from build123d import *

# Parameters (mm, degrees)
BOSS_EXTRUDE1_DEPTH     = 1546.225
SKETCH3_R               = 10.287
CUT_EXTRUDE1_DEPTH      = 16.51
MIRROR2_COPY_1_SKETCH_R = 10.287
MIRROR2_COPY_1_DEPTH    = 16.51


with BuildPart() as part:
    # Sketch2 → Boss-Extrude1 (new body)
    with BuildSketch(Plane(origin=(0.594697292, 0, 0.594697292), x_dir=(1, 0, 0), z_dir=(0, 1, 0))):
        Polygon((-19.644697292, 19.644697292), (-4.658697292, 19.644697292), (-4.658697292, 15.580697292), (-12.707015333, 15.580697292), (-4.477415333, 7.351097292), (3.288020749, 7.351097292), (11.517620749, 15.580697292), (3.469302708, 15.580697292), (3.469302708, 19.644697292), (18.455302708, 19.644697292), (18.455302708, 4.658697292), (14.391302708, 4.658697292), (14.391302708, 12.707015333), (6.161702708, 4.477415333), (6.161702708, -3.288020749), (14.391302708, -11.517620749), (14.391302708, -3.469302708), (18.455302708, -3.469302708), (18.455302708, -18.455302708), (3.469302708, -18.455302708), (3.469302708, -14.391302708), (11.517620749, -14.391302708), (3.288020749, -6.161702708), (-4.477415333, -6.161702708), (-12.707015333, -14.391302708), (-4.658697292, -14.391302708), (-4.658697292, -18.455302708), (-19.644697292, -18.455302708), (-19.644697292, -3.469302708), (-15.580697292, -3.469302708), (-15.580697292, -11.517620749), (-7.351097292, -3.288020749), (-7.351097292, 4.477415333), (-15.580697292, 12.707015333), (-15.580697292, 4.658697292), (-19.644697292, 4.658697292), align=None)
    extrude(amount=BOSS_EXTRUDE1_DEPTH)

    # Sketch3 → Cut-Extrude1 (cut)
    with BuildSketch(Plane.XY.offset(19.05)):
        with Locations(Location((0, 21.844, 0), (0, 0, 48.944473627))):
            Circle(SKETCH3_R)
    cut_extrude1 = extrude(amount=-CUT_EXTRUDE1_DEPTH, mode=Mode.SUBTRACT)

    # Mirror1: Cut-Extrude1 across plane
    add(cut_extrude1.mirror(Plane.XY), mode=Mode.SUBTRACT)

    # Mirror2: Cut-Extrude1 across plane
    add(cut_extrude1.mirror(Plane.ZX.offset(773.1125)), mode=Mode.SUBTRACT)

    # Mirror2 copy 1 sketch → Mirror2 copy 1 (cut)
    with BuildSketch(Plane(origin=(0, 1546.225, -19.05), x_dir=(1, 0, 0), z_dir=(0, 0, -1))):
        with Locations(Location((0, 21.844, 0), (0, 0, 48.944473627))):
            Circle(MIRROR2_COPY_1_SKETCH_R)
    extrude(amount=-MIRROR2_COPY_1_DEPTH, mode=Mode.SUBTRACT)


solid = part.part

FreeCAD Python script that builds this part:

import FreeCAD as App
import Part
import Sketcher
Q = App.Units.Quantity


def add_polygon(sketch, points):
    """Adds a closed chain of lines whose ends are joined by coincident constraints."""
    first, n = sketch.GeometryCount, len(points)
    for a, b in zip(points, points[1:] + points[:1]):
        sketch.addGeometry(Part.LineSegment(App.Vector(*a, 0), App.Vector(*b, 0)), False)
    for i in range(n):
        sketch.addConstraint(Sketcher.Constraint("Coincident", first + i, 2, first + (i + 1) % n, 1))

doc = App.newDocument("Part")
params = doc.addObject("Spreadsheet::Sheet", "Params")
for row, (alias, value) in enumerate([
    ("sketch1_width", "0.59 in"),
    ("sketch1_width2", "0.16 in"),
    ("pad1_length", "60.875 in"),
    ("sketch2_diameter", "0.81 in"),
    ("pocket1_length", "0.65 in"),
    ("sketch3_diameter", "0.81 in"),
    ("pocket2_length", "0.65 in"),
], start=1):
    params.set(f"A{row}", alias)
    params.set(f"B{row}", "=" + value)
    params.setAlias(f"B{row}", alias)

body = doc.addObject("PartDesign::Body", "Body")

# Sketch on XZ plane
sketch1 = body.newObject("Sketcher::SketchObject", "Sketch")
sketch1.AttachmentSupport = (doc.getObject("XZ_Plane"), [""])
sketch1.MapMode = "FlatFace"
add_polygon(sketch1, [(-4.1, -19.1), (-19.1, -19.1), (-19.1, -4.1), (-15, -4.1), (-15, -12.1), (-6.8, -3.9), (-6.8, 3.9), (-15, 12.1), (-15, 4.1), (-19.1, 4.1), (-19.1, 19.1), (-4.1, 19.1), (-4.1, 15), (-12.1, 15), (-3.9, 6.8), (3.9, 6.8), (12.1, 15), (4.1, 15), (4.1, 19.1), (19.1, 19.1), (19.1, 4.1), (15, 4.1), (15, 12.1), (6.8, 3.9), (6.8, -3.9), (15, -12.1), (15, -4.1), (19.1, -4.1), (19.1, -19.1), (4.1, -19.1), (4.1, -15), (12.1, -15), (3.9, -6.8), (-3.9, -6.8), (-12.1, -15), (-4.1, -15)])  # lines 0-35
sketch1.addConstraint(Sketcher.Constraint("Horizontal", 0))
sketch1.addConstraint(Sketcher.Constraint("Vertical", 1))
sketch1.addConstraint(Sketcher.Constraint("Horizontal", 2))
sketch1.addConstraint(Sketcher.Constraint("Vertical", 3))
sketch1.addConstraint(Sketcher.Constraint("Vertical", 5))
sketch1.addConstraint(Sketcher.Constraint("Vertical", 7))
sketch1.addConstraint(Sketcher.Constraint("Horizontal", 8))
sketch1.addConstraint(Sketcher.Constraint("Vertical", 9))
sketch1.addConstraint(Sketcher.Constraint("Horizontal", 10))
sketch1.addConstraint(Sketcher.Constraint("Vertical", 11))
sketch1.addConstraint(Sketcher.Constraint("Horizontal", 12))
sketch1.addConstraint(Sketcher.Constraint("Horizontal", 14))
sketch1.addConstraint(Sketcher.Constraint("Horizontal", 16))
sketch1.addConstraint(Sketcher.Constraint("Vertical", 17))
sketch1.addConstraint(Sketcher.Constraint("Horizontal", 18))
sketch1.addConstraint(Sketcher.Constraint("Vertical", 19))
sketch1.addConstraint(Sketcher.Constraint("Horizontal", 20))
sketch1.addConstraint(Sketcher.Constraint("Vertical", 21))
sketch1.addConstraint(Sketcher.Constraint("Vertical", 23))
sketch1.addConstraint(Sketcher.Constraint("Vertical", 25))
sketch1.addConstraint(Sketcher.Constraint("Horizontal", 26))
sketch1.addConstraint(Sketcher.Constraint("Vertical", 27))
sketch1.addConstraint(Sketcher.Constraint("Horizontal", 28))
sketch1.addConstraint(Sketcher.Constraint("Vertical", 29))
sketch1.addConstraint(Sketcher.Constraint("Horizontal", 30))
sketch1.addConstraint(Sketcher.Constraint("Horizontal", 32))
sketch1.addConstraint(Sketcher.Constraint("Horizontal", 34))
sketch1.addConstraint(Sketcher.Constraint("Vertical", 35))
sketch1.addConstraint(Sketcher.Constraint("Symmetric", 0, 2, 18, 2, -1, 1))
sketch1.addConstraint(Sketcher.Constraint("Symmetric", 2, 2, 20, 2, -1, 1))
sketch1.addConstraint(Sketcher.Constraint("Symmetric", 4, 2, 22, 2, -1, 1))
sketch1.addConstraint(Sketcher.Constraint("Symmetric", 6, 2, 24, 2, -1, 1))
sketch1.addConstraint(Sketcher.Constraint("Symmetric", 8, 2, 26, 2, -1, 1))
sketch1.addConstraint(Sketcher.Constraint("Symmetric", 10, 2, 28, 2, -1, 1))
sketch1.addConstraint(Sketcher.Constraint("Symmetric", 12, 2, 30, 2, -1, 1))
sketch1.addConstraint(Sketcher.Constraint("Symmetric", 13, 2, 31, 2, -1, 1))
sketch1.addConstraint(Sketcher.Constraint("Symmetric", 15, 2, 33, 2, -1, 1))
sketch1.addConstraint(Sketcher.Constraint("Symmetric", 12, 2, 15, 2, -2))
sketch1.addConstraint(Sketcher.Constraint("Symmetric", 10, 2, 17, 2, -2))
sketch1.addConstraint(Sketcher.Constraint("Symmetric", 8, 2, 19, 2, -2))
sketch1.addConstraint(Sketcher.Constraint("Symmetric", 6, 2, 21, 2, -2))
sketch1.addConstraint(Sketcher.Constraint("Perpendicular", 4, 6))
sketch1.addConstraint(Sketcher.Constraint("Parallel", 6, 13))
sketch1.addConstraint(Sketcher.Constraint("Perpendicular", 13, 15))
sketch1.addConstraint(Sketcher.Constraint("Parallel", 15, 22))
sketch1.addConstraint(Sketcher.Constraint("Perpendicular", 22, 24))
sketch1.addConstraint(Sketcher.Constraint("Perpendicular", 31, 33))
sketch1.addConstraint(Sketcher.Constraint("Horizontal", 5, 2, 22, 2))
sketch1.addConstraint(Sketcher.Constraint("Vertical", 11, 2, 34, 2))
sketch1.addConstraint(Sketcher.Constraint("Equal", 28, 1))
sketch1.addConstraint(Sketcher.Constraint("Equal", 34, 3))
sketch1.addConstraint(Sketcher.Constraint("Equal", 32, 5))
sketch1.addConstraint(Sketcher.Constraint("Equal", 26, 11))
sketch1.addConstraint(Sketcher.Constraint("Equal", 6, 13))
sketch1.addConstraint(Sketcher.Constraint("DistanceX", 0, 2, 0, 1, Q("0.59 in")))
sketch1.addConstraint(Sketcher.Constraint("DistanceX", 2, 1, 2, 2, Q("0.16 in")))
sketch1.addConstraint(Sketcher.Constraint("DistanceX", 0, 2, -1, 1, Q("0.75 in")))
sketch1.addConstraint(Sketcher.Constraint("DistanceX", 4, 2, -1, 1, Q("0.266 in")))
sketch1.addConstraint(Sketcher.Constraint("DistanceX", 12, 2, 12, 1, Q("8.048318 mm")))
sketch1.setExpression("Constraints[90]", "Params.sketch1_width")
sketch1.setExpression("Constraints[91]", "Params.sketch1_width2")
pad1 = body.newObject("PartDesign::Pad", "Pad")
pad1.Profile = sketch1
pad1.setExpression("Length", "Params.pad1_length")
pad1.Reversed = True

# Sketch on XY plane
sketch2 = body.newObject("Sketcher::SketchObject", "Sketch001")
sketch2.AttachmentSupport = (doc.getObject("XY_Plane"), [""])
sketch2.MapMode = "FlatFace"
sketch2.AttachmentOffset = App.Placement(App.Vector(0, 0, 0.75 * 25.4), App.Rotation())
sketch2.addGeometry(Part.Circle(App.Vector(0, 22, 0), App.Vector(0, 0, 1), 10), False)
sketch2.addConstraint(Sketcher.Constraint("PointOnObject", 0, 3, -2))
sketch2.addConstraint(Sketcher.Constraint("Diameter", 0, Q("0.81 in")))
sketch2.addConstraint(Sketcher.Constraint("DistanceY", -1, 1, 0, 3, Q("0.86 in")))
sketch2.setExpression("Constraints[1]", "Params.sketch2_diameter")
pocket1 = body.newObject("PartDesign::Pocket", "Pocket")
pocket1.Profile = sketch2
pocket1.setExpression("Length", "Params.pocket1_length")
doc.recompute()

mirrored = body.newObject("PartDesign::Mirrored", "Mirrored")
mirrored.Originals = [pocket1]
mirrored.MirrorPlane = (doc.getObject("XY_Plane"), [""])
body.Tip = mirrored
doc.recompute()

datumplane = body.newObject("PartDesign::Plane", "DatumPlane")
datumplane.AttachmentSupport = (doc.getObject("XZ_Plane"), [""])
datumplane.MapMode = "FlatFace"
datumplane.AttachmentOffset = App.Placement(App.Vector(0, 0, -30.4375 * 25.4), App.Rotation())
mirrored2 = body.newObject("PartDesign::Mirrored", "Mirrored001")
mirrored2.Originals = [pocket1]
mirrored2.MirrorPlane = (datumplane, [""])
body.Tip = mirrored2

# Sketch on XY plane
sketch3 = body.newObject("Sketcher::SketchObject", "Sketch002")
sketch3.AttachmentSupport = (doc.getObject("XY_Plane"), [""])
sketch3.MapMode = "FlatFace"
sketch3.AttachmentOffset = App.Placement(App.Vector(0, 0, -0.75 * 25.4), App.Rotation())
sketch3.addGeometry(Part.Circle(App.Vector(0, 1524, 0), App.Vector(0, 0, 1), 10), False)
sketch3.addConstraint(Sketcher.Constraint("PointOnObject", 0, 3, -2))
sketch3.addConstraint(Sketcher.Constraint("Diameter", 0, Q("0.81 in")))
sketch3.addConstraint(Sketcher.Constraint("DistanceY", -1, 1, 0, 3, Q("60.015 in")))
sketch3.setExpression("Constraints[1]", "Params.sketch3_diameter")
pocket2 = body.newObject("PartDesign::Pocket", "Pocket001")
pocket2.Profile = sketch3
pocket2.setExpression("Length", "Params.pocket2_length")
pocket2.Reversed = True

doc.recompute()
